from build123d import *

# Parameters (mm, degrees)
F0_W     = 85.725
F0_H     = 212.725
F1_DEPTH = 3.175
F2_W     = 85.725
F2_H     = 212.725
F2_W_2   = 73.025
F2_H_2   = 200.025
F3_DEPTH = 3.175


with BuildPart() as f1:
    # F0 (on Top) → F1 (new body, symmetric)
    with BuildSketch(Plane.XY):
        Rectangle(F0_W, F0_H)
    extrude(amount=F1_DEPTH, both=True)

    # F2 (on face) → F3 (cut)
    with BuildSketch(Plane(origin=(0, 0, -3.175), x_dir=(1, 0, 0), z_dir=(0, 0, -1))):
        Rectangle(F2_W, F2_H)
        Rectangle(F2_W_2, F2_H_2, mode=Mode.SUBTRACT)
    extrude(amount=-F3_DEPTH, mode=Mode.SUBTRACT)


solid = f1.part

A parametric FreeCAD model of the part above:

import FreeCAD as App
import Part
import Sketcher
Q = App.Units.Quantity


def add_polygon(sketch, points):
    """Adds a closed chain of lines whose ends are joined by coincident constraints."""
    first, n = sketch.GeometryCount, len(points)
    for a, b in zip(points, points[1:] + points[:1]):
        sketch.addGeometry(Part.LineSegment(App.Vector(*a, 0), App.Vector(*b, 0)), False)
    for i in range(n):
        sketch.addConstraint(Sketcher.Constraint("Coincident", first + i, 2, first + (i + 1) % n, 1))

doc = App.newDocument("Part")
params = doc.addObject("Spreadsheet::Sheet", "Params")
for row, (alias, value) in enumerate([
    ("sketch1_width", "3.375 in"),
    ("sketch1_height", "8.375 in"),
    ("pad1_length", "0.25 in"),
    ("sketch2_width", "3.375 in"),
    ("sketch2_width2", "2.875 in"),
    ("sketch2_height", "8.375 in"),
    ("sketch2_height2", "7.875 in"),
    ("pocket1_length", "0.125 in"),
], start=1):
    params.set(f"A{row}", alias)
    params.set(f"B{row}", "=" + value)
    params.setAlias(f"B{row}", alias)

body = doc.addObject("PartDesign::Body", "Body")

sketch1 = doc.addObject("Sketcher::SketchObject", "Sketch")
body.addObject(sketch1)
sketch1.AttachmentSupport = (doc.XY_Plane, [""])
sketch1.MapMode = "FlatFace"
add_polygon(sketch1, [(-43, 106), (-43, -106), (43, -106), (43, 106)])
sketch1.addConstraint([
    Sketcher.Constraint("Vertical", 0),
    Sketcher.Constraint("Horizontal", 1),
    Sketcher.Constraint("Vertical", 2),
    Sketcher.Constraint("Horizontal", 3),
    Sketcher.Constraint("Symmetric", 0, 2, 2, 2, -1, 1),
    Sketcher.Constraint("DistanceX", 1, 1, 1, 2, Q("3.375 in")),
    Sketcher.Constraint("DistanceY", 0, 2, 0, 1, Q("8.375 in")),
])
sketch1.setExpression("Constraints[9]", "Params.sketch1_width")
sketch1.setExpression("Constraints[10]", "Params.sketch1_height")
pad1 = doc.addObject("PartDesign::Pad", "Pad")
body.addObject(pad1)
pad1.Profile = sketch1
pad1.setExpression("Length", "Params.pad1_length")
pad1.Midplane = True

sketch2 = doc.addObject("Sketcher::SketchObject", "Sketch001")
body.addObject(sketch2)
sketch2.AttachmentSupport = (doc.XY_Plane, [""])
sketch2.MapMode = "FlatFace"
sketch2.AttachmentOffset = App.Placement(App.Vector(0, 0, -0.125 * 25.4), App.Rotation())
add_polygon(sketch2, [(-43, -106), (-43, 106), (43, 106), (43, -106)])
add_polygon(sketch2, [(37, 100), (-37, 100), (-37, -100), (37, -100)])
sketch2.addConstraint([
    Sketcher.Constraint("Vertical", 0),
    Sketcher.Constraint("Horizontal", 1),
    Sketcher.Constraint("Vertical", 2),
    Sketcher.Constraint("Horizontal", 3),
    Sketcher.Constraint("Horizontal", 4),
    Sketcher.Constraint("Vertical", 5),
    Sketcher.Constraint("Horizontal", 6),
    Sketcher.Constraint("Vertical", 7),
    Sketcher.Constraint("Symmetric", 0, 2, 2, 2, -1, 1),
    Sketcher.Constraint("Symmetric", 4, 2, 6, 2, -1, 1),
    Sketcher.Constraint("DistanceX", 1, 1, 1, 2, Q("3.375 in")),
    Sketcher.Constraint("DistanceX", 4, 2, 4, 1, Q("2.875 in")),
    Sketcher.Constraint("DistanceY", 0, 1, 0, 2, Q("8.375 in")),
    Sketcher.Constraint("DistanceY", 5, 2, 5, 1, Q("7.875 in")),
])
sketch2.setExpression("Constraints[18]", "Params.sketch2_width")
sketch2.setExpression("Constraints[19]", "Params.sketch2_width2")
sketch2.setExpression("Constraints[20]", "Params.sketch2_height")
sketch2.setExpression("Constraints[21]", "Params.sketch2_height2")
pocket1 = doc.addObject("PartDesign::Pocket", "Pocket")
body.addObject(pocket1)
pocket1.Profile = sketch2
pocket1.setExpression("Length", "Params.pocket1_length")
pocket1.Reversed = True

doc.recompute()
